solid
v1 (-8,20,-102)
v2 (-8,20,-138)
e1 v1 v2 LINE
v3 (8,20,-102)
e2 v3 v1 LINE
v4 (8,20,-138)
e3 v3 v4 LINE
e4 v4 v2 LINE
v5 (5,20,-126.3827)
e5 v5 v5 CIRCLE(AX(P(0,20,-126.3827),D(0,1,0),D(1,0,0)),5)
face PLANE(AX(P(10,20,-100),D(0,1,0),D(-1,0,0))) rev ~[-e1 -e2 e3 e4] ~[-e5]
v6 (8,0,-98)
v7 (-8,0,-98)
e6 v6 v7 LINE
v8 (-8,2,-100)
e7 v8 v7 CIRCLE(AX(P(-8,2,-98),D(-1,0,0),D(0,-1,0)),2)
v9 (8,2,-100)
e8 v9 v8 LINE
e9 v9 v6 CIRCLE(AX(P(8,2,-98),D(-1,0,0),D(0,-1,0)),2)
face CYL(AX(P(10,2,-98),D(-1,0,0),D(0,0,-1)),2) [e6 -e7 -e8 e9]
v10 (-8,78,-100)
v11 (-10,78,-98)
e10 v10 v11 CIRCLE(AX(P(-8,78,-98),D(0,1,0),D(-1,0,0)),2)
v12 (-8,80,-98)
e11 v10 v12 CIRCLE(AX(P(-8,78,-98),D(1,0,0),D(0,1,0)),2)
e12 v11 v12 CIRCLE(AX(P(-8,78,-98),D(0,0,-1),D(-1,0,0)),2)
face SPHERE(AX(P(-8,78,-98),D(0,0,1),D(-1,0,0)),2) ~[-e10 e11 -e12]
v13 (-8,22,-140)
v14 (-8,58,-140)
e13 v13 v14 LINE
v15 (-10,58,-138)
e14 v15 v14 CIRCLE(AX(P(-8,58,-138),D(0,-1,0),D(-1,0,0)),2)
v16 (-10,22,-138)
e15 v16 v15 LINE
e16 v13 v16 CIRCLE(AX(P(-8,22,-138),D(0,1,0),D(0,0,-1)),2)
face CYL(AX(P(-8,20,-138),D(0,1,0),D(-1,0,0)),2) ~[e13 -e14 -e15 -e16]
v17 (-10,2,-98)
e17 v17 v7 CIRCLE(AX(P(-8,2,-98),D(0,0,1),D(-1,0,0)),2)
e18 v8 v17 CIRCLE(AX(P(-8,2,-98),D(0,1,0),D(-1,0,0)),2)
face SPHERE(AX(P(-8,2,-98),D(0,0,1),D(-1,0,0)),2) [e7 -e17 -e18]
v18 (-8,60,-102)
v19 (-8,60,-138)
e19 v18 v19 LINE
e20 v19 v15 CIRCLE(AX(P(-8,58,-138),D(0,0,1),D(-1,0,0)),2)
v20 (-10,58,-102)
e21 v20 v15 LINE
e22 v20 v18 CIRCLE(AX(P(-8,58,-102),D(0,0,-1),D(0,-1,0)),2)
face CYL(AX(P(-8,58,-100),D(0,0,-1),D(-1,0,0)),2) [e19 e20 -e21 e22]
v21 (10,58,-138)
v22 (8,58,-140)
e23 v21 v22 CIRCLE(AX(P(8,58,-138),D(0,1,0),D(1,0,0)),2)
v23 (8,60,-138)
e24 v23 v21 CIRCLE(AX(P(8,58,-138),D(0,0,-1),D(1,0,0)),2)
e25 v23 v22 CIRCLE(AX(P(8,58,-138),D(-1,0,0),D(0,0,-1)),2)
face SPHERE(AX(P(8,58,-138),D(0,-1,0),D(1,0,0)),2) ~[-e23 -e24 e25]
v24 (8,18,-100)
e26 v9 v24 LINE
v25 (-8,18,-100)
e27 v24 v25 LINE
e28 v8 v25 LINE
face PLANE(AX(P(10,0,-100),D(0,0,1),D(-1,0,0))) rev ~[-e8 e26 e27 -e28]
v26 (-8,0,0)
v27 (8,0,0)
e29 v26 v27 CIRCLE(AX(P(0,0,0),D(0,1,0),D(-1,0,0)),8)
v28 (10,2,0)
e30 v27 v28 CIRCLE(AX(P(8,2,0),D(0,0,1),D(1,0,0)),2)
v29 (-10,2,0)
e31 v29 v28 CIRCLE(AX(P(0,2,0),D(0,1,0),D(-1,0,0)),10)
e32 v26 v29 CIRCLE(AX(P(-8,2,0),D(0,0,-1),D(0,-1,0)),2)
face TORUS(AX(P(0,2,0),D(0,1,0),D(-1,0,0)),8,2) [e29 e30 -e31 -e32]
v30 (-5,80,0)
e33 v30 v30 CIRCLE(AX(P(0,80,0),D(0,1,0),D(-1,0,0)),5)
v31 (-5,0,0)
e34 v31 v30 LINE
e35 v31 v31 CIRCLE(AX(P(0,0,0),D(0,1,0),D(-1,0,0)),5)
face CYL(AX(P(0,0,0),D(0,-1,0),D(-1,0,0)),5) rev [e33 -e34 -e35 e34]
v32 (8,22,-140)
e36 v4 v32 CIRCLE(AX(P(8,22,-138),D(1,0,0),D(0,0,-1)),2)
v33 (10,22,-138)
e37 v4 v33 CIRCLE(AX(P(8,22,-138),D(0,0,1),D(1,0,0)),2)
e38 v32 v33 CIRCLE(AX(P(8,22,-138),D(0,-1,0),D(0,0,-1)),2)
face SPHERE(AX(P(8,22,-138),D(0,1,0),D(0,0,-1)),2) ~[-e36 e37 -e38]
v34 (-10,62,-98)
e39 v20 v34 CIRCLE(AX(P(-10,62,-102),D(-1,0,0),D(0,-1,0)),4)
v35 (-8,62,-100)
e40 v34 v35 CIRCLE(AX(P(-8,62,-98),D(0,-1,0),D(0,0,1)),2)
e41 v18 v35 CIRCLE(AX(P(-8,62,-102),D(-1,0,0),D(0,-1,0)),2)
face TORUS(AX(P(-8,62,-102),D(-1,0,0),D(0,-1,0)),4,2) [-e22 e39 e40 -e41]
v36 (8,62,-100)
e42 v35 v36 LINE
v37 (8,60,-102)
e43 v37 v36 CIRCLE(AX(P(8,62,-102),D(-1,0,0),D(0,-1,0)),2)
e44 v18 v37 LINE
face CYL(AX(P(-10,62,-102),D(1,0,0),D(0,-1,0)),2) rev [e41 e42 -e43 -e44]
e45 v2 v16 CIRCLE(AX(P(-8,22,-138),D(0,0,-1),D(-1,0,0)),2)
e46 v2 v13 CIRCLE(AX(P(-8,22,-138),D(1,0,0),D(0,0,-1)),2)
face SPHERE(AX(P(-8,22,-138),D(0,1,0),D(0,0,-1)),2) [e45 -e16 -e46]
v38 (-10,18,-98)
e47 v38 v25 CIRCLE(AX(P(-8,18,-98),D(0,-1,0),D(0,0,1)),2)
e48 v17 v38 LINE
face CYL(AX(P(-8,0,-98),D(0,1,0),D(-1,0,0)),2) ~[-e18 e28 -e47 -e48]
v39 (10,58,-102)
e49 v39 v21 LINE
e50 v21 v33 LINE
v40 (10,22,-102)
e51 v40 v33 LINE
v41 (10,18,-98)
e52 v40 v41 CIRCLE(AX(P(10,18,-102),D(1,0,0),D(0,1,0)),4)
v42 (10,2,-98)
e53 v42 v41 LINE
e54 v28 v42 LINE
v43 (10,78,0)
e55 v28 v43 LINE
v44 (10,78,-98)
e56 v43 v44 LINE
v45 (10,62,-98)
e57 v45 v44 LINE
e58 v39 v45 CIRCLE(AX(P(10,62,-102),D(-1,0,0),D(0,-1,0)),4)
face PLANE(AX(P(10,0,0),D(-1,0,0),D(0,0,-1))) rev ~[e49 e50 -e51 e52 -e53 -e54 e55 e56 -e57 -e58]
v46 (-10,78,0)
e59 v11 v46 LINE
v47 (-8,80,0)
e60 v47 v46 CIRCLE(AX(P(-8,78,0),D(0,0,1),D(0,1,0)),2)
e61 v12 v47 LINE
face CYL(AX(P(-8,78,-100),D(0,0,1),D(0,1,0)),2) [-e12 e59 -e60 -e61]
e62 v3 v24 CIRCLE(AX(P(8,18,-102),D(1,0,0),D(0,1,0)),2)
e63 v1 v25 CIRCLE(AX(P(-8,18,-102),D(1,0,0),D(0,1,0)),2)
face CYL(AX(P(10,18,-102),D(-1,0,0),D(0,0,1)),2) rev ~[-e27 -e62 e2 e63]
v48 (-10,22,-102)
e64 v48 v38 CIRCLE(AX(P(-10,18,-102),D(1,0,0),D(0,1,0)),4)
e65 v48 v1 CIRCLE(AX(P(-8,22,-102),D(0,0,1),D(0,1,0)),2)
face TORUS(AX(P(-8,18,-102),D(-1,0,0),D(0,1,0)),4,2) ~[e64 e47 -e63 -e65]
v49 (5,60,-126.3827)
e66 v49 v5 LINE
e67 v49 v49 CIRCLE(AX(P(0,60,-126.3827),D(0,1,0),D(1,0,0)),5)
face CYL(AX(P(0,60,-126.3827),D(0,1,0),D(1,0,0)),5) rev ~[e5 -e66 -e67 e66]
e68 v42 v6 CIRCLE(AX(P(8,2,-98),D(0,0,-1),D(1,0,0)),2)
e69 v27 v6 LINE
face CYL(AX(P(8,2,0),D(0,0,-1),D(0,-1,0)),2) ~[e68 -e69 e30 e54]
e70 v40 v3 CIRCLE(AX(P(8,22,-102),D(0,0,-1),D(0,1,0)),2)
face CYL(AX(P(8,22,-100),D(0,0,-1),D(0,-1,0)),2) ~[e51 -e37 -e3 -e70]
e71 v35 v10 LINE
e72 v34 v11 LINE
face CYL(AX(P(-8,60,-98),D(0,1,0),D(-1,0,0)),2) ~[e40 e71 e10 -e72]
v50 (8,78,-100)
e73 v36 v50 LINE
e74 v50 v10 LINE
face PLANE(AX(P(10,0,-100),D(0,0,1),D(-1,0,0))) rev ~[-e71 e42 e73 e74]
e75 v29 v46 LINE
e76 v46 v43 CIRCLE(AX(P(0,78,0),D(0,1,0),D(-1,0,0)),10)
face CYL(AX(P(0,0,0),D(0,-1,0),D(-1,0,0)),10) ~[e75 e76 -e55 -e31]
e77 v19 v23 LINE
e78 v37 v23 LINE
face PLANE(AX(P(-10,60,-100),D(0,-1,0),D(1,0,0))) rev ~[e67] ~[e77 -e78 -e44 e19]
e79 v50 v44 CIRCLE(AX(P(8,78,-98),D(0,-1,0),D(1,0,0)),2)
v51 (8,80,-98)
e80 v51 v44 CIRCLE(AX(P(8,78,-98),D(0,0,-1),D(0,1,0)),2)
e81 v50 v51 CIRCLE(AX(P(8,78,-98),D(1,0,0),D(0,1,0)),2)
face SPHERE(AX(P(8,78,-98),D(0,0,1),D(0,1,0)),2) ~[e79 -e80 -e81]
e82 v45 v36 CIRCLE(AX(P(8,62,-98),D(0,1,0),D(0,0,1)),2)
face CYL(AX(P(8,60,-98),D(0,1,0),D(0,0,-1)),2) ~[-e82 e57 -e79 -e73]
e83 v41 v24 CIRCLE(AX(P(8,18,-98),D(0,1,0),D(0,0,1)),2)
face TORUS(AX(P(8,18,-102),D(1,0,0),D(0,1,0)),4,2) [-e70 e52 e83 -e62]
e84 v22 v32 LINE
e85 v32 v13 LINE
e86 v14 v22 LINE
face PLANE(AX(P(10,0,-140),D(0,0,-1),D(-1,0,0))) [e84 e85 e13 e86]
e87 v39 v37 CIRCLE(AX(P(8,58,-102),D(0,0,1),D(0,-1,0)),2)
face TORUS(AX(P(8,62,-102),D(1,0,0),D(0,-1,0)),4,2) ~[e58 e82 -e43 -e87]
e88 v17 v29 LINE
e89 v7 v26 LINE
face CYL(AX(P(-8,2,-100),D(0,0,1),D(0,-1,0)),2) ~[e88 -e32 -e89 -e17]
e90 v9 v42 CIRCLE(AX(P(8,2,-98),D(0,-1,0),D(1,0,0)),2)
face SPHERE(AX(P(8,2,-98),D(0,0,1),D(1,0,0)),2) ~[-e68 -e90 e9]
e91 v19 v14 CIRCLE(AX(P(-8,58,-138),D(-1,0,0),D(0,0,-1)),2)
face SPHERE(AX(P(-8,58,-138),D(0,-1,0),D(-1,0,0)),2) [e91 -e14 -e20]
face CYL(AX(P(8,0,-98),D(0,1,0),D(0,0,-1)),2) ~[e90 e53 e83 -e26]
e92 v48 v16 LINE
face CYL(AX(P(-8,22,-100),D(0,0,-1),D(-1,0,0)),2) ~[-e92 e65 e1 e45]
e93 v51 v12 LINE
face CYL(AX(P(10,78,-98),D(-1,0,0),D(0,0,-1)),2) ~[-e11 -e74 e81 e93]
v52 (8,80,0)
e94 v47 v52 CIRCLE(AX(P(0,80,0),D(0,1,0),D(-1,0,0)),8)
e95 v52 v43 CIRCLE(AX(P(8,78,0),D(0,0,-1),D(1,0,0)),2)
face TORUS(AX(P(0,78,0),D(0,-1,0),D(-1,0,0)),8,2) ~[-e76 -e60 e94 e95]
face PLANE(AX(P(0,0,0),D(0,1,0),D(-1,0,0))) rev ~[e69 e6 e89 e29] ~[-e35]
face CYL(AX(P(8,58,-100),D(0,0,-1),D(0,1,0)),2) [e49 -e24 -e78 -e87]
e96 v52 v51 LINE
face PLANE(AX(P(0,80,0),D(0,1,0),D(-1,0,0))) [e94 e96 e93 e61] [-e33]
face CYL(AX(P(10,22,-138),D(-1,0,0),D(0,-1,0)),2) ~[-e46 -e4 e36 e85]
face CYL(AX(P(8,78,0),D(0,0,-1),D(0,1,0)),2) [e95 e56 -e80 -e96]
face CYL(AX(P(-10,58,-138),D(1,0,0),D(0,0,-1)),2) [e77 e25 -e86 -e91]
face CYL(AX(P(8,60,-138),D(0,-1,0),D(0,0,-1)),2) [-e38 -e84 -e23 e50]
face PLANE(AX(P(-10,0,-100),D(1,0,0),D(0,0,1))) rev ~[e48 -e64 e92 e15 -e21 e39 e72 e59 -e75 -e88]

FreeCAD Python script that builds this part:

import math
import FreeCAD as App
import Part
import Sketcher
Q = App.Units.Quantity


def edges_at(feature, points):
    """Names of the edges that pass closest to the given points."""
    edges = feature.Shape.Edges
    near = lambda p: min(range(len(edges)), key=lambda i: edges[i].distToShape(Part.Vertex(*p))[0])
    return sorted({f"Edge{near(p) + 1}" for p in points})


def add_polygon(sketch, points):
    """Adds a closed chain of lines whose ends are joined by coincident constraints."""
    first, n = sketch.GeometryCount, len(points)
    for a, b in zip(points, points[1:] + points[:1]):
        sketch.addGeometry(Part.LineSegment(App.Vector(*a, 0), App.Vector(*b, 0)), False)
    for i in range(n):
        sketch.addConstraint(Sketcher.Constraint("Coincident", first + i, 2, first + (i + 1) % n, 1))

doc = App.newDocument("Part")
body = doc.addObject("PartDesign::Body", "Body")

# Sketch on XZ plane
sketch1 = doc.addObject("Sketcher::SketchObject", "Sketch")
body.addObject(sketch1)
sketch1.AttachmentSupport = (doc.XZ_Plane, [""])
sketch1.MapMode = "FlatFace"
sketch1.addGeometry([
    Part.LineSegment(App.Vector(-10, -100, 0), App.Vector(-10, 0, 0)),  # 0
    Part.ArcOfCircle(Part.Circle(App.Vector(0, 0, 0), App.Vector(0, 0, 1), 10), math.radians(0), math.radians(180)),  # 1
    Part.LineSegment(App.Vector(10, 0, 0), App.Vector(10, -100, 0)),  # 2
    Part.LineSegment(App.Vector(10, -100, 0), App.Vector(-10, -100, 0)),  # 3
    Part.Circle(App.Vector(0, 0, 0), App.Vector(0, 0, 1), 5),  # 4
], False)
sketch1.addConstraint([
    Sketcher.Constraint("Tangent", 0, 2, 1, 2),
    Sketcher.Constraint("Tangent", 1, 1, 2, 1),
    Sketcher.Constraint("Coincident", 2, 2, 3, 1),
    Sketcher.Constraint("Coincident", 3, 2, 0, 1),
    Sketcher.Constraint("Vertical", 0),
    Sketcher.Constraint("Vertical", 2),
    Sketcher.Constraint("Horizontal", 3),
    Sketcher.Constraint("Coincident", 1, 3, -1, 1),
    Sketcher.Constraint("Coincident", 4, 3, -1, 1),
    Sketcher.Constraint("Diameter", 4, Q("10 mm")),
    Sketcher.Constraint("Radius", 1, Q("10 mm")),
    Sketcher.Constraint("DistanceY", 0, 1, 0, 2, Q("100 mm")),
])
pad1 = doc.addObject("PartDesign::Pad", "Pad")
body.addObject(pad1)
pad1.Profile = sketch1
pad1.Length = 80
pad1.Reversed = True

# Sketch on XY plane
sketch2 = doc.addObject("Sketcher::SketchObject", "Sketch001")
body.addObject(sketch2)
sketch2.AttachmentSupport = (doc.XY_Plane, [""])
sketch2.MapMode = "FlatFace"
sketch2.AttachmentOffset = App.Placement(App.Vector(0, 0, -100), App.Rotation())
add_polygon(sketch2, [(10, 20), (-10, 20), (-10, 60), (10, 60)])  # lines 0-3
sketch2.addConstraint([
    Sketcher.Constraint("Horizontal", 0),
    Sketcher.Constraint("Vertical", 1),
    Sketcher.Constraint("Horizontal", 2),
    Sketcher.Constraint("Vertical", 3),
    Sketcher.Constraint("DistanceY", 1, 1, 1, 2, Q("40 mm")),
    Sketcher.Constraint("DistanceX", 0, 2, 0, 1, Q("20 mm")),
    Sketcher.Constraint("DistanceX", 0, 2, -1, 1, Q("10 mm")),
    Sketcher.Constraint("DistanceY", -1, 1, 0, 2, Q("20 mm")),
])
pad2 = doc.addObject("PartDesign::Pad", "Pad001")
body.addObject(pad2)
pad2.Profile = sketch2
pad2.Length = 40
pad2.Reversed = True

# Sketch on XZ plane
sketch3 = doc.addObject("Sketcher::SketchObject", "Sketch002")
body.addObject(sketch3)
sketch3.AttachmentSupport = (doc.XZ_Plane, [""])
sketch3.MapMode = "FlatFace"
sketch3.AttachmentOffset = App.Placement(App.Vector(0, 0, -60), App.Rotation())
sketch3.addGeometry(Part.Circle(App.Vector(0, -126, 0), App.Vector(0, 0, 1), 5), False)
sketch3.addConstraint([
    Sketcher.Constraint("PointOnObject", 0, 3, -2),
    Sketcher.Constraint("Diameter", 0, Q("10 mm")),
    Sketcher.Constraint("DistanceY", 0, 3, -1, 1, Q("126.3827 mm")),
])
pocket1 = doc.addObject("PartDesign::Pocket", "Pocket")
body.addObject(pocket1)
pocket1.Profile = sketch3
pocket1.Length = 40
pocket1.Reversed = True
doc.recompute()

fillet = doc.addObject("PartDesign::Fillet", "Fillet")
body.addObject(fillet)
fillet.Base = (pocket1, edges_at(pocket1, [
    (0, 80, 10),
    (10, 80, -50),
    (-10, 80, -50),
    (10, 0, -50),
    (-10, 0, -50),
    (0, 0, 10),
    (-10, 70, -100),
    (0, 80, -100),
    (10, 70, -100),
    (-10, 10, -100),
    (10, 10, -100),
    (0, 0, -100),
    (0, 60, -100),
    (0, 20, -100),
    (10, 40, -140),
    (-10, 40, -140),
    (0, 20, -140),
    (10, 20, -120),
    (-10, 20, -120),
    (10, 60, -120),
    (-10, 60, -120),
    (0, 60, -140),
]))
fillet.Radius = 2

doc.recompute()
